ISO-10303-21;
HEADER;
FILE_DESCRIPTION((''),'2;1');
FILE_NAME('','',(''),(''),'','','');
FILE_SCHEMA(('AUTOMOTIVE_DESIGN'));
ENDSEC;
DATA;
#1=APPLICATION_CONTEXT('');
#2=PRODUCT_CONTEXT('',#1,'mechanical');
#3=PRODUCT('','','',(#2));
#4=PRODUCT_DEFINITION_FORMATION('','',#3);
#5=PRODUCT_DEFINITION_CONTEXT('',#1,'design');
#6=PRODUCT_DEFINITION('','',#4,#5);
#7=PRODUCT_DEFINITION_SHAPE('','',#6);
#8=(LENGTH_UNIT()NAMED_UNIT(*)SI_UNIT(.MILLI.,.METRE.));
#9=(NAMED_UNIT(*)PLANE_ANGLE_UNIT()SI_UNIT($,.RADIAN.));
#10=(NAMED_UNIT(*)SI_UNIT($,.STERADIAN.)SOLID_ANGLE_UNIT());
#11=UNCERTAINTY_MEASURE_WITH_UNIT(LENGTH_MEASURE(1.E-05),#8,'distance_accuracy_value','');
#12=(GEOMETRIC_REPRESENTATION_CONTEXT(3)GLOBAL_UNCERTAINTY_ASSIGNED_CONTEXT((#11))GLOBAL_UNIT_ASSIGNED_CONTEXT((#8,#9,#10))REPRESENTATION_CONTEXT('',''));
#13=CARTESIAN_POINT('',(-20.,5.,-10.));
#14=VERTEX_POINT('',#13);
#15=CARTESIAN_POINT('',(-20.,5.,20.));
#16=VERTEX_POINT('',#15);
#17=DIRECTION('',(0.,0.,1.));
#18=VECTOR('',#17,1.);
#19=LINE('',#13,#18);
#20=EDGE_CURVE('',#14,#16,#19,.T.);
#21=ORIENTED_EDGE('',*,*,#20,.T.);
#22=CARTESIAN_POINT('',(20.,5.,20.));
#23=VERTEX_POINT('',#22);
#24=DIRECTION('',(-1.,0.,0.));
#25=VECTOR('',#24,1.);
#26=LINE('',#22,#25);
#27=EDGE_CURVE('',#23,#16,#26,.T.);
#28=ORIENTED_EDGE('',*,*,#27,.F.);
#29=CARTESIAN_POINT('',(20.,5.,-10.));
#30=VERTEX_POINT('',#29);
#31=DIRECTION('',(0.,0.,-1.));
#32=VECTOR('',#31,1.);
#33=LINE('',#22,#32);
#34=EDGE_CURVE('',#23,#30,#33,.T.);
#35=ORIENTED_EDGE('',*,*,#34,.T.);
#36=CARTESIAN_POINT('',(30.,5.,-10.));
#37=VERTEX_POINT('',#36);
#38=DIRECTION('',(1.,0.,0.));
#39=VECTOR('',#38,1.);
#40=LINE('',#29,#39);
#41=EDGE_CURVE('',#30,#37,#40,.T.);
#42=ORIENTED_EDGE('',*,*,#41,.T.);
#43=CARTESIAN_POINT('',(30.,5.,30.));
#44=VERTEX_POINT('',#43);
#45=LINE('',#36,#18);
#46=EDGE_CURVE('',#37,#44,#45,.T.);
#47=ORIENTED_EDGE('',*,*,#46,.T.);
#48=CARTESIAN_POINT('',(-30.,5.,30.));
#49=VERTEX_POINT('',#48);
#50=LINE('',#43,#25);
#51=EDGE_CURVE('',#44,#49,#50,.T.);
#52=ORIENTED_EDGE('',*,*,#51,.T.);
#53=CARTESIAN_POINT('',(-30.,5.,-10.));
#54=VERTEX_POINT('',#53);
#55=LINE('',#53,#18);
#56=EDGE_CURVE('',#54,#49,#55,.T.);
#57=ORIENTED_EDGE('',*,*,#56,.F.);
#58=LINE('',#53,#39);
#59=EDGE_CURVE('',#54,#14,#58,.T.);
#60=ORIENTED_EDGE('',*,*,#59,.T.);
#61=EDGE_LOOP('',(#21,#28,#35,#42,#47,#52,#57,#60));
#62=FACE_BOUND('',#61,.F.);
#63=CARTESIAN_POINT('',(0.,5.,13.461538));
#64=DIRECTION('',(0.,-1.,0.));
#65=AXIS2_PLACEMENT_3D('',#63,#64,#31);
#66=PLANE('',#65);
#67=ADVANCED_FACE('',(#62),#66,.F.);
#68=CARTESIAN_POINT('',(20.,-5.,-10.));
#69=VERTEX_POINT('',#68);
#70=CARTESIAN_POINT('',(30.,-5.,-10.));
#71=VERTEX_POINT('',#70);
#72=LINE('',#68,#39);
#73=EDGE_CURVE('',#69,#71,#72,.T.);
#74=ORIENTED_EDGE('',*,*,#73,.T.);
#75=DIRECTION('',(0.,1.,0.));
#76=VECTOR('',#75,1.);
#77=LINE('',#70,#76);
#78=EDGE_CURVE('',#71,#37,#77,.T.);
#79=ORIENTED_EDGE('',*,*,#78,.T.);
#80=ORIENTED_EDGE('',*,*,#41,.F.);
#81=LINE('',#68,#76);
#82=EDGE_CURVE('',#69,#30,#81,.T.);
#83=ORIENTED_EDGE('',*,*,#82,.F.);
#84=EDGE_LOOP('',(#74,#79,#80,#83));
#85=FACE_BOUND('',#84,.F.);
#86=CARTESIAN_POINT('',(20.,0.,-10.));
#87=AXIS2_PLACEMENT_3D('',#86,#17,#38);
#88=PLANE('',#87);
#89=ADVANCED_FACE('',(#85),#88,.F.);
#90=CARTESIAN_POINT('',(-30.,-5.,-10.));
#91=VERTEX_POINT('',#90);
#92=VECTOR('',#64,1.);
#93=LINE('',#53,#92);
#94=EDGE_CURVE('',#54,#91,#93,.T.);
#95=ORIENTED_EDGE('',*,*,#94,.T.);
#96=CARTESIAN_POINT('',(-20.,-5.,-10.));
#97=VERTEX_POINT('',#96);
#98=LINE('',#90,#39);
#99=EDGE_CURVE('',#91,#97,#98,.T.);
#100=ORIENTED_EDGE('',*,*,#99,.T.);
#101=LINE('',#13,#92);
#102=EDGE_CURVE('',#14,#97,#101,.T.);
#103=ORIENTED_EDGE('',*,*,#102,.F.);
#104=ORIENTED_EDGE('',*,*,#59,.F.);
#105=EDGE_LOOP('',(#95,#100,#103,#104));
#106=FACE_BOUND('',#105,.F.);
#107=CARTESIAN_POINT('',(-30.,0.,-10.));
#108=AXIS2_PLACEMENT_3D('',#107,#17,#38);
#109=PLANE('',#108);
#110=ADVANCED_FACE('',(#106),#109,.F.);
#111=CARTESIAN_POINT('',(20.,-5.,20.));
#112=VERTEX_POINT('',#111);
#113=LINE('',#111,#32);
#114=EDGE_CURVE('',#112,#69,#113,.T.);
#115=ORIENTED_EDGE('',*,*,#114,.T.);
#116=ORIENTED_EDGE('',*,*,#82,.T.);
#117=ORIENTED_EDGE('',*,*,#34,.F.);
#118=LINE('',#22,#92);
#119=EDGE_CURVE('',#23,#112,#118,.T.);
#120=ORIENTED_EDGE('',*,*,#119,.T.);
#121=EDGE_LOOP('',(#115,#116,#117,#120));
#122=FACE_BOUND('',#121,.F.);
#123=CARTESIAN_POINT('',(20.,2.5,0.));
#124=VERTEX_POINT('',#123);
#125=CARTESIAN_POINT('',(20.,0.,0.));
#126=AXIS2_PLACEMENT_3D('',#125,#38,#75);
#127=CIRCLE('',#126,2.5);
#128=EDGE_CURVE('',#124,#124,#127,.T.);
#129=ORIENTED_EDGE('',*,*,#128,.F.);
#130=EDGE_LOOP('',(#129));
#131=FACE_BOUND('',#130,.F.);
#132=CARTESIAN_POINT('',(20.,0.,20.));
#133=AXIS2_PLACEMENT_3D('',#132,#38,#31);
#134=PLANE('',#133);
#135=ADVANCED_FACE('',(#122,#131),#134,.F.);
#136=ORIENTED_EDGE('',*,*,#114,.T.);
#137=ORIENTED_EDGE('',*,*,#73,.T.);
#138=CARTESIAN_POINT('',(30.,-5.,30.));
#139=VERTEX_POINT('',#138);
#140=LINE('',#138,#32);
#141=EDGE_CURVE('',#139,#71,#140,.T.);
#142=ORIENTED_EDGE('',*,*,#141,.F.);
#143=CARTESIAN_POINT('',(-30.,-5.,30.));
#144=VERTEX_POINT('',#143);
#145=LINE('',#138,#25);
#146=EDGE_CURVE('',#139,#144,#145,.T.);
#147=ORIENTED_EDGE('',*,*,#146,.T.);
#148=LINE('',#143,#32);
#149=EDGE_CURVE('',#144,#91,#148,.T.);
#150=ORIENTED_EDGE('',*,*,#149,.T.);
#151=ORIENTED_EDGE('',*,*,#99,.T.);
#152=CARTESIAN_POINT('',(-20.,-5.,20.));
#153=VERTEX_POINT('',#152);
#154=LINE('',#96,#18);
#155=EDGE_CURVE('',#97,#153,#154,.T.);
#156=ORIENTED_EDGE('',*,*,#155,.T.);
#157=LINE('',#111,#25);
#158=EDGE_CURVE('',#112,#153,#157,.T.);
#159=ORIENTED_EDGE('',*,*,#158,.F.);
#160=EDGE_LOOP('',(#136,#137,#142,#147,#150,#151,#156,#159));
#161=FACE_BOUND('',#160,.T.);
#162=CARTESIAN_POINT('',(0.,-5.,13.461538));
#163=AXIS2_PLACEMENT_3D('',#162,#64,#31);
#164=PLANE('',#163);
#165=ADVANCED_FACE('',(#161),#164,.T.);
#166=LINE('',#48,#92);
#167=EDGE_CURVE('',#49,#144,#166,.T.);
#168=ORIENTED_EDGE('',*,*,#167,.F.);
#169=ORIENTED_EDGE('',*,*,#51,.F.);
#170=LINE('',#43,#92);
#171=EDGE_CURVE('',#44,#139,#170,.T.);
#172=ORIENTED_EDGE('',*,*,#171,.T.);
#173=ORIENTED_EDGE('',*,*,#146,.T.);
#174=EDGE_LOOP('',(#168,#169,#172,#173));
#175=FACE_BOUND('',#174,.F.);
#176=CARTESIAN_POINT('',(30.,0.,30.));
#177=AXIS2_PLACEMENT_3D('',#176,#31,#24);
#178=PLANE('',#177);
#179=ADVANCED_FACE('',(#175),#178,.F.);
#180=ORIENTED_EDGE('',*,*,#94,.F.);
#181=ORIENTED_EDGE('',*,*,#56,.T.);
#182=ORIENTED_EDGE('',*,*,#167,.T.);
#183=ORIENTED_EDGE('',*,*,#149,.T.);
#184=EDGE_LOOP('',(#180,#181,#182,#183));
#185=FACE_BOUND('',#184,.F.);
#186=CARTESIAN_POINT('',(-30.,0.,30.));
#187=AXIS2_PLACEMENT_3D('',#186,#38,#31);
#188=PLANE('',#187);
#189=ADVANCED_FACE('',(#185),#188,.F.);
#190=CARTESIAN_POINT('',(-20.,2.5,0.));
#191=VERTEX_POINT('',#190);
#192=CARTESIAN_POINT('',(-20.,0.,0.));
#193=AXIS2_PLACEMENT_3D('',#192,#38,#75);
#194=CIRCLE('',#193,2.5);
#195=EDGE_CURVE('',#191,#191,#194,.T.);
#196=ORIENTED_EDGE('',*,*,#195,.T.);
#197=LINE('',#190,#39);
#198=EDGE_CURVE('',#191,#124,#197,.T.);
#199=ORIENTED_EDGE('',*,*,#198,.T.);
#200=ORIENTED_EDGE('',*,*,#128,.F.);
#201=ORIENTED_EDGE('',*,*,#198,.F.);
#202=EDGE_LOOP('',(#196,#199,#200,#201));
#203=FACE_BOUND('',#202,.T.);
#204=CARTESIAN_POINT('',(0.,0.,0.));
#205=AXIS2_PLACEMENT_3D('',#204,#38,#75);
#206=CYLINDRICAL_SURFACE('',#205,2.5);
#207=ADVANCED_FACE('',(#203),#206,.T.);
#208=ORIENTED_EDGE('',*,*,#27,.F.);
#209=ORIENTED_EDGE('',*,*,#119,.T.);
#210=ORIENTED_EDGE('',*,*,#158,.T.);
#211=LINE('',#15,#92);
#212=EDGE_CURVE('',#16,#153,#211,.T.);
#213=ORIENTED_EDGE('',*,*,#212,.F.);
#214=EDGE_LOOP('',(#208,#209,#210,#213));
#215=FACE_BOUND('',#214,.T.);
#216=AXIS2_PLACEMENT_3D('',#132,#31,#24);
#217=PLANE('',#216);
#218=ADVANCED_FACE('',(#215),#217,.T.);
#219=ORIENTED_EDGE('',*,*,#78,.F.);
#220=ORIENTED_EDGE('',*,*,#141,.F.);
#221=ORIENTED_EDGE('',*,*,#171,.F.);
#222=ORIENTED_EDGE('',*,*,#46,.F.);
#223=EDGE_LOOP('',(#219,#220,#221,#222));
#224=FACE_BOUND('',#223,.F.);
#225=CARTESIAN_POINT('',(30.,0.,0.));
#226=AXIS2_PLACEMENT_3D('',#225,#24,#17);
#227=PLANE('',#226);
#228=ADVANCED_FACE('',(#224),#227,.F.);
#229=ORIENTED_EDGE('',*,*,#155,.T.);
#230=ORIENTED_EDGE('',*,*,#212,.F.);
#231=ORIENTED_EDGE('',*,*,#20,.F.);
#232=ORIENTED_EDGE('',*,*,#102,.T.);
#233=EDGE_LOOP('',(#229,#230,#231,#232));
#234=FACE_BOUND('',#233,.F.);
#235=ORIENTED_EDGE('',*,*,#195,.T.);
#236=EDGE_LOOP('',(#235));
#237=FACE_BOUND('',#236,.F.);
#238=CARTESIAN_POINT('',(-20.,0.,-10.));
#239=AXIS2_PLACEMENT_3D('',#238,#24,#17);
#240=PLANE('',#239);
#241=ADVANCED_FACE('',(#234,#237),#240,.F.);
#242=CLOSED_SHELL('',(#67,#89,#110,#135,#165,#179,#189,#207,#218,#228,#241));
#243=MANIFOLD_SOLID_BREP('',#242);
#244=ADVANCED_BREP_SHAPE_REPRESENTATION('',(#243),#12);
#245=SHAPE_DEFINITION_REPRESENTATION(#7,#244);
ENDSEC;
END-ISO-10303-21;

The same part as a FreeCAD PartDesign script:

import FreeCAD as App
import Part
import Sketcher
Q = App.Units.Quantity

doc = App.newDocument("Part")
body = doc.addObject("PartDesign::Body", "Body")

# Sketch on YZ plane
sketch1 = body.newObject("Sketcher::SketchObject", "Sketch")
sketch1.AttachmentSupport = (doc.getObject("YZ_Plane"), [""])
sketch1.MapMode = "FlatFace"
sketch1.addGeometry(Part.Circle(App.Vector(0, 0, 0), App.Vector(0, 0, 1), 2.5), False)
sketch1.addConstraint([
    Sketcher.Constraint("Coincident", 0, 3, -1, 1),
    Sketcher.Constraint("Diameter", 0, Q("5 mm")),
])
pad1 = body.newObject("PartDesign::Pad", "Pad")
pad1.Profile = sketch1
pad1.Length = 40
pad1.Midplane = True

# Sketch on XZ plane
sketch2 = body.newObject("Sketcher::SketchObject", "Sketch001")
sketch2.AttachmentSupport = (doc.getObject("XZ_Plane"), [""])
sketch2.MapMode = "FlatFace"
sketch2.addGeometry([
    Part.LineSegment(App.Vector(30, -10, 0), App.Vector(30, 30, 0)),  # 0
    Part.LineSegment(App.Vector(30, 30, 0), App.Vector(-30, 30, 0)),  # 1
    Part.LineSegment(App.Vector(-30, 30, 0), App.Vector(-30, -10, 0)),  # 2
    Part.LineSegment(App.Vector(-30, -10, 0), App.Vector(-20, -10, 0)),  # 3
    Part.LineSegment(App.Vector(-20, -10, 0), App.Vector(-20, 20, 0)),  # 4
    Part.LineSegment(App.Vector(-20, 20, 0), App.Vector(20, 20, 0)),  # 5
    Part.LineSegment(App.Vector(20, 20, 0), App.Vector(20, -10, 0)),  # 6
    Part.LineSegment(App.Vector(20, -10, 0), App.Vector(30, -10, 0)),  # 7
], False)
sketch2.addConstraint([
    Sketcher.Constraint("Coincident", 0, 2, 1, 1),
    Sketcher.Constraint("Coincident", 1, 2, 2, 1),
    Sketcher.Constraint("Coincident", 2, 2, 3, 1),
    Sketcher.Constraint("Coincident", 3, 2, 4, 1),
    Sketcher.Constraint("Coincident", 4, 2, 5, 1),
    Sketcher.Constraint("Coincident", 5, 2, 6, 1),
    Sketcher.Constraint("Coincident", 6, 2, 7, 1),
    Sketcher.Constraint("Coincident", 7, 2, 0, 1),
    Sketcher.Constraint("Vertical", 0),
    Sketcher.Constraint("Horizontal", 1),
    Sketcher.Constraint("Vertical", 2),
    Sketcher.Constraint("Horizontal", 3),
    Sketcher.Constraint("Vertical", 4),
    Sketcher.Constraint("Horizontal", 5),
    Sketcher.Constraint("Vertical", 6),
    Sketcher.Constraint("Horizontal", 7),
    Sketcher.Constraint("Symmetric", 3, 2, 6, 2, -2),
    Sketcher.Constraint("Equal", 3, 7),
    Sketcher.Constraint("Equal", 5, 0),
    Sketcher.Constraint("DistanceX", 1, 2, 1, 1, Q("60 mm")),
    Sketcher.Constraint("DistanceX", 3, 1, 3, 2, Q("10 mm")),
    Sketcher.Constraint("DistanceY", 4, 1, 4, 2, Q("30 mm")),
    Sketcher.Constraint("DistanceY", -1, 1, 0, 2, Q("30 mm")),
])
pad2 = body.newObject("PartDesign::Pad", "Pad001")
pad2.Profile = sketch2
pad2.Length = 10
pad2.Midplane = True

doc.recompute()
